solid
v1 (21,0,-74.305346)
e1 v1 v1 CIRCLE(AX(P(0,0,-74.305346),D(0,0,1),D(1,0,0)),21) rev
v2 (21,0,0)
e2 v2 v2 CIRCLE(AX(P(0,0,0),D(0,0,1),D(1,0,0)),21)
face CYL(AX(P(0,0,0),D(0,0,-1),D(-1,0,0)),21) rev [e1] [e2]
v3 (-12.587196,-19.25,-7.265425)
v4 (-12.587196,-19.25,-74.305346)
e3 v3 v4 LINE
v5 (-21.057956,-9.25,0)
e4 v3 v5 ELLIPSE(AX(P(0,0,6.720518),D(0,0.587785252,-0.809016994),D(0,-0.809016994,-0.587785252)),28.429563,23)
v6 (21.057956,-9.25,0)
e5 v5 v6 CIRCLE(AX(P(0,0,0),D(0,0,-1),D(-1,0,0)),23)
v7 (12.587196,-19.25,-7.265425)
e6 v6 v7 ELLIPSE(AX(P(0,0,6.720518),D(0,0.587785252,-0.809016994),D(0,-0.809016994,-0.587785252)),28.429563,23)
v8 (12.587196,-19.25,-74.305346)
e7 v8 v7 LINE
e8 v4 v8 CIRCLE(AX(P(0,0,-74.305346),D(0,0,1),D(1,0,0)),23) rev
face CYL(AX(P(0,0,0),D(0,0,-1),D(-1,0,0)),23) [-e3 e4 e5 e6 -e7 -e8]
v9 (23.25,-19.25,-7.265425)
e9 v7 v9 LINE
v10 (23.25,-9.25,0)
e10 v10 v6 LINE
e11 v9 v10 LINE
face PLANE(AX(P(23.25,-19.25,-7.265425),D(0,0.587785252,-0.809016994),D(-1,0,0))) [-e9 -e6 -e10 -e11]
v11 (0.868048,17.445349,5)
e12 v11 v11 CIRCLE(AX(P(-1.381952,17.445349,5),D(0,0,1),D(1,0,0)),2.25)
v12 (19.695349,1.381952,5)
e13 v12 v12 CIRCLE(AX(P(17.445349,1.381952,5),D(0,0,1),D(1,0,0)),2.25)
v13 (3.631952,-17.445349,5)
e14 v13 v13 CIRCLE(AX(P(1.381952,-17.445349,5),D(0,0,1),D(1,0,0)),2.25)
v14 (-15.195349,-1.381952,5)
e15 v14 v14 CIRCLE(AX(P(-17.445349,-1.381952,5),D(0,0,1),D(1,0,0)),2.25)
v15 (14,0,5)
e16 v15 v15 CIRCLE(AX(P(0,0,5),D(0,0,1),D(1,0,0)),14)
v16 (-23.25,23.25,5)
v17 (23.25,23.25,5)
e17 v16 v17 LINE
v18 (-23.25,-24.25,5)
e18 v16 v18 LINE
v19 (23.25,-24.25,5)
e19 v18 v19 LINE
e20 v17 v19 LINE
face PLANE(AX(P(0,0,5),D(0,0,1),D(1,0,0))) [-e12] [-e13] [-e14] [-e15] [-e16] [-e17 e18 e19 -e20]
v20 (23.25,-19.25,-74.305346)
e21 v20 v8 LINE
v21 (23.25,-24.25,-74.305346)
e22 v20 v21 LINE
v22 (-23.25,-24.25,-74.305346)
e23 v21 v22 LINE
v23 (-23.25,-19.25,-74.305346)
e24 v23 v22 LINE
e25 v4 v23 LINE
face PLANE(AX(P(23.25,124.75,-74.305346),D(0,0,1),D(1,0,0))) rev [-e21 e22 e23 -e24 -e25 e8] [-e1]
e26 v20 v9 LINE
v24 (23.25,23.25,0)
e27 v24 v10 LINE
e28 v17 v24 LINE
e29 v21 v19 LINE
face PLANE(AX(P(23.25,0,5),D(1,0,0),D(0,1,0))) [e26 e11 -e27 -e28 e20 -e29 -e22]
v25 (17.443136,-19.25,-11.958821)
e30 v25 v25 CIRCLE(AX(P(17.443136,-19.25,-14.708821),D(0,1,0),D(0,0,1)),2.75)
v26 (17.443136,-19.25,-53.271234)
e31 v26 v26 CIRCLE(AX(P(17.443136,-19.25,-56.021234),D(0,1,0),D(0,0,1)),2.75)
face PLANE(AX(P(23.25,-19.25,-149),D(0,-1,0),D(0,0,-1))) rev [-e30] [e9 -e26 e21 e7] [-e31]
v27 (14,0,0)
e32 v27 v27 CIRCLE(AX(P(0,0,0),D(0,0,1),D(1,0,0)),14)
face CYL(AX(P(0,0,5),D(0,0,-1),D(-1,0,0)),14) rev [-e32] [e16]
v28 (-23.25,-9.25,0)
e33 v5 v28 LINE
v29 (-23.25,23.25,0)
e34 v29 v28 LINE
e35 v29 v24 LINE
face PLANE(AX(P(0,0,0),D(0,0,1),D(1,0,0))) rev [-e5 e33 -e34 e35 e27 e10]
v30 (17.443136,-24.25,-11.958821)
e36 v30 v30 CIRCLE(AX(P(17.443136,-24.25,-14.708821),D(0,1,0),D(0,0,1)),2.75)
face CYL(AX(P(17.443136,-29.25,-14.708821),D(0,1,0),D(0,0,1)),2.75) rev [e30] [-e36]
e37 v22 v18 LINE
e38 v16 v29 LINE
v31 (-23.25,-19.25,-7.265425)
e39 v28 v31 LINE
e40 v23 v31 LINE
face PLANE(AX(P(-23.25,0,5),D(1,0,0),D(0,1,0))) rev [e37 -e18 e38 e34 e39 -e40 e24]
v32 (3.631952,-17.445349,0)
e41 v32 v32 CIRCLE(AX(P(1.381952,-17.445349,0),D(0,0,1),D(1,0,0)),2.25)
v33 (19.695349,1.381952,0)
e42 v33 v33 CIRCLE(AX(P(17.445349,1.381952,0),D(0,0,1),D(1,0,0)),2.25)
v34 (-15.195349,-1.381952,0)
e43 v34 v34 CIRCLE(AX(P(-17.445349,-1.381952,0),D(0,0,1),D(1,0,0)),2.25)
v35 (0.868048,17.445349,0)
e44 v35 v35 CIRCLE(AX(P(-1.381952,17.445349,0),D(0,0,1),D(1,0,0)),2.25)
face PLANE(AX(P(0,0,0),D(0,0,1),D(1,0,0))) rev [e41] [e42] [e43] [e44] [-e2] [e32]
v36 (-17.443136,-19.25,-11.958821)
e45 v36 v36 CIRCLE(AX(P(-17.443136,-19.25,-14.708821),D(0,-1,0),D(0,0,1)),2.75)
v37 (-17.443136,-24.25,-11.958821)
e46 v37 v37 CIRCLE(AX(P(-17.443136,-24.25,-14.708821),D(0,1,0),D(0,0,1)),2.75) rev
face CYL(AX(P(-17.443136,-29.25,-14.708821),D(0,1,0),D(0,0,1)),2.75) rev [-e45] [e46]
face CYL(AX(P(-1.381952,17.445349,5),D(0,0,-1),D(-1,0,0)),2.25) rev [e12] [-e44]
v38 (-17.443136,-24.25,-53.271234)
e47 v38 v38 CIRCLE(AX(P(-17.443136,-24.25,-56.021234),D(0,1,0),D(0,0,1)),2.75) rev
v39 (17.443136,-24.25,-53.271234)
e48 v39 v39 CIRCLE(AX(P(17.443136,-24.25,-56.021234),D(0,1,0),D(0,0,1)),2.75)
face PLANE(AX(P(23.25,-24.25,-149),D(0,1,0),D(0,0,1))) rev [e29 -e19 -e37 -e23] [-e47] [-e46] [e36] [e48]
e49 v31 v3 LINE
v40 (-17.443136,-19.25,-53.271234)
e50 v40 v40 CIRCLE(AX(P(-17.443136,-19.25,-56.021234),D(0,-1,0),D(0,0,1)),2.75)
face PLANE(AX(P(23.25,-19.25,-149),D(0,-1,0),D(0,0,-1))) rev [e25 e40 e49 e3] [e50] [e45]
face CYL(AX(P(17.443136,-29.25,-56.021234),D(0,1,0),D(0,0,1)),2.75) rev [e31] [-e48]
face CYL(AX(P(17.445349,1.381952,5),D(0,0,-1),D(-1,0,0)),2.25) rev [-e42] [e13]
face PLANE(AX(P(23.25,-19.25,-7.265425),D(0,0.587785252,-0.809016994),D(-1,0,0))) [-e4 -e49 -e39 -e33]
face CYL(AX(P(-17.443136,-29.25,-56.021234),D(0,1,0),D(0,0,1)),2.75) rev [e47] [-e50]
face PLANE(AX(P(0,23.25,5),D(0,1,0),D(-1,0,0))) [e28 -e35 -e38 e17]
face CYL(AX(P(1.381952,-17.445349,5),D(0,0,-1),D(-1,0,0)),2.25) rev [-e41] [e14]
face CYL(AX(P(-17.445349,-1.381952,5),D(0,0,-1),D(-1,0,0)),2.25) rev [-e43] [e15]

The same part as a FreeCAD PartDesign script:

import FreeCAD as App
import Part
import Sketcher
Q = App.Units.Quantity


def edges_at(feature, points):
    """Names of the edges that pass closest to the given points."""
    edges = feature.Shape.Edges
    near = lambda p: min(range(len(edges)), key=lambda i: edges[i].distToShape(Part.Vertex(*p))[0])
    return sorted({f"Edge{near(p) + 1}" for p in points})

doc = App.newDocument("Part")
body = doc.addObject("PartDesign::Body", "Body")

sketch1 = body.newObject("Sketcher::SketchObject", "Sketch")
sketch1.AttachmentSupport = (doc.getObject("XY_Plane"), [""])
sketch1.MapMode = "FlatFace"
sketch1.addGeometry([
    Part.LineSegment(App.Vector(-23.2, 23.2, 0), App.Vector(-23.2, -23.2, 0)),
    Part.LineSegment(App.Vector(-23.2, -23.2, 0), App.Vector(23.2, -23.2, 0)),
    Part.LineSegment(App.Vector(23.2, -23.2, 0), App.Vector(23.2, 23.2, 0)),
    Part.LineSegment(App.Vector(23.2, 23.2, 0), App.Vector(-23.2, 23.2, 0)),
    Part.Circle(App.Vector(-17.4, -1.4, 0), App.Vector(0, 0, 1), 2.2),
    Part.Circle(App.Vector(1.4, -17.4, 0), App.Vector(0, 0, 1), 2.2),
    Part.Circle(App.Vector(-1.4, 17.4, 0), App.Vector(0, 0, 1), 2.2),
    Part.Circle(App.Vector(0, 0, 0), App.Vector(0, 0, 1), 14),
    Part.Circle(App.Vector(17.4, 1.4, 0), App.Vector(0, 0, 1), 2.2),
], False)
sketch1.addConstraint([
    Sketcher.Constraint("Coincident", 0, 2, 1, 1),
    Sketcher.Constraint("Coincident", 1, 2, 2, 1),
    Sketcher.Constraint("Coincident", 2, 2, 3, 1),
    Sketcher.Constraint("Coincident", 3, 2, 0, 1),
    Sketcher.Constraint("Vertical", 0),
    Sketcher.Constraint("Horizontal", 1),
    Sketcher.Constraint("Vertical", 2),
    Sketcher.Constraint("Horizontal", 3),
    Sketcher.Constraint("Coincident", 7, 3, -1, 1),
    Sketcher.Constraint("Equal", 4, 5),
    Sketcher.Constraint("Equal", 5, 6),
    Sketcher.Constraint("Equal", 6, 8),
    Sketcher.Constraint("Symmetric", 5, 3, 6, 3, -1, 1),
    Sketcher.Constraint("Symmetric", 4, 3, 8, 3, -1, 1),
    Sketcher.Constraint("Symmetric", 0, 2, 2, 2, -1, 1),
    Sketcher.Constraint("Equal", 3, 0),
    Sketcher.Constraint("Diameter", 7, Q("28 mm")),
    Sketcher.Constraint("Diameter", 4, Q("4.5 mm")),
    Sketcher.Constraint("DistanceX", 1, 1, 1, 2, Q("46.5 mm")),
    Sketcher.Constraint("DistanceX", 4, 3, 5, 3, Q("18.827301 mm")),
    Sketcher.Constraint("DistanceY", 4, 3, 6, 3, Q("18.827301 mm")),
    Sketcher.Constraint("DistanceY", 5, 3, 6, 3, Q("34.890698 mm")),
    Sketcher.Constraint("DistanceX", 4, 3, 8, 3, Q("34.890698 mm")),
])
pad1 = body.newObject("PartDesign::Pad", "Pad")
pad1.Profile = sketch1
pad1.Length = 5

sketch2 = body.newObject("Sketcher::SketchObject", "Sketch001")
sketch2.AttachmentSupport = (doc.getObject("XY_Plane"), [""])
sketch2.MapMode = "FlatFace"
sketch2.addGeometry([
    Part.LineSegment(App.Vector(23, -19, 0), App.Vector(23, -24, 0)),
    Part.LineSegment(App.Vector(23, -24, 0), App.Vector(-23, -24, 0)),
    Part.LineSegment(App.Vector(-23, -24, 0), App.Vector(-23, -19, 0)),
    Part.LineSegment(App.Vector(-23, -19, 0), App.Vector(23, -19, 0)),
], False)
sketch2.addConstraint([
    Sketcher.Constraint("Coincident", 0, 2, 1, 1),
    Sketcher.Constraint("Coincident", 1, 2, 2, 1),
    Sketcher.Constraint("Coincident", 2, 2, 3, 1),
    Sketcher.Constraint("Coincident", 3, 2, 0, 1),
    Sketcher.Constraint("Vertical", 0),
    Sketcher.Constraint("Horizontal", 1),
    Sketcher.Constraint("Vertical", 2),
    Sketcher.Constraint("Horizontal", 3),
    Sketcher.Constraint("DistanceY", 0, 2, 0, 1, Q("5 mm")),
    Sketcher.Constraint("DistanceX", 1, 2, 1, 1, Q("46.5 mm")),
    Sketcher.Constraint("DistanceX", -1, 1, 0, 2, Q("23.25 mm")),
    Sketcher.Constraint("DistanceY", 0, 2, -1, 1, Q("24.25 mm")),
])
pad2 = body.newObject("PartDesign::Pad", "Pad001")
pad2.Profile = sketch2
pad2.Length = 149
pad2.Reversed = True

sketch3 = body.newObject("Sketcher::SketchObject", "Sketch002")
sketch3.AttachmentSupport = (doc.getObject("XZ_Plane"), [""])
sketch3.MapMode = "FlatFace"
sketch3.AttachmentOffset = App.Placement(App.Vector(0, 0, 23.25), App.Rotation())
sketch3.addGeometry([
    Part.LineSegment(App.Vector(-23, 5, 0), App.Vector(-23, 0, 0)),
    Part.LineSegment(App.Vector(-23, 0, 0), App.Vector(23, 0, 0)),
    Part.LineSegment(App.Vector(23, 0, 0), App.Vector(23, 5, 0)),
    Part.LineSegment(App.Vector(23, 5, 0), App.Vector(-23, 5, 0)),
], False)
sketch3.addConstraint([
    Sketcher.Constraint("Coincident", 0, 2, 1, 1),
    Sketcher.Constraint("Coincident", 1, 2, 2, 1),
    Sketcher.Constraint("Coincident", 2, 2, 3, 1),
    Sketcher.Constraint("Coincident", 3, 2, 0, 1),
    Sketcher.Constraint("Vertical", 0),
    Sketcher.Constraint("Horizontal", 1),
    Sketcher.Constraint("Vertical", 2),
    Sketcher.Constraint("Horizontal", 3),
    Sketcher.Constraint("Symmetric", 0, 2, 1, 2, -1, 1),
    Sketcher.Constraint("DistanceY", 0, 2, 0, 1, Q("5 mm")),
    Sketcher.Constraint("DistanceX", 1, 1, 1, 2, Q("46.5 mm")),
])
pad3 = body.newObject("PartDesign::Pad", "Pad002")
pad3.Profile = sketch3
pad3.Length = 1

sketch4 = body.newObject("Sketcher::SketchObject", "Sketch003")
sketch4.AttachmentSupport = (doc.getObject("XZ_Plane"), [""])
sketch4.MapMode = "FlatFace"
sketch4.AttachmentOffset = App.Placement(App.Vector(0, 0, 19.25), App.Rotation())
sketch4.addGeometry([
    Part.Circle(App.Vector(17.4, -14.7, 0), App.Vector(0, 0, 1), 2.8),
    Part.Circle(App.Vector(17.4, -87.8, 0), App.Vector(0, 0, 1), 2.8),
    Part.Circle(App.Vector(17.4, -56, 0), App.Vector(0, 0, 1), 2.8),
    Part.Circle(App.Vector(17.4, -129.1, 0), App.Vector(0, 0, 1), 2.8),
], False)
sketch4.addConstraint([
    Sketcher.Constraint("Equal", 0, 1),
    Sketcher.Constraint("Equal", 1, 2),
    Sketcher.Constraint("Equal", 2, 3),
    Sketcher.Constraint("Vertical", 0, 3, 1, 3),
    Sketcher.Constraint("Vertical", 1, 3, 2, 3),
    Sketcher.Constraint("Vertical", 2, 3, 3, 3),
    Sketcher.Constraint("Diameter", 0, Q("5.5 mm")),
    Sketcher.Constraint("DistanceY", 0, 3, -1, 1, Q("14.708821 mm")),
    Sketcher.Constraint("DistanceY", 1, 3, 2, 3, Q("31.812452 mm")),
    Sketcher.Constraint("DistanceY", 3, 3, 1, 3, Q("41.307021 mm")),
    Sketcher.Constraint("DistanceX", -1, 1, 0, 3, Q("17.443136 mm")),
    Sketcher.Constraint("DistanceY", 1, 3, -1, 1, Q("87.833686 mm")),
])
pocket1 = body.newObject("PartDesign::Pocket", "Pocket")
pocket1.Profile = sketch4
pocket1.Length = 10
pocket1.Reversed = True
doc.recompute()

mirrored = body.newObject("PartDesign::Mirrored", "Mirrored")
mirrored.Originals = [pocket1]
mirrored.MirrorPlane = (doc.getObject("YZ_Plane"), [""])
body.Tip = mirrored

sketch5 = body.newObject("Sketcher::SketchObject", "Sketch004")
sketch5.AttachmentSupport = (doc.getObject("XY_Plane"), [""])
sketch5.MapMode = "FlatFace"
sketch5.AttachmentOffset = App.Placement(App.Vector(0, 0, -149), App.Rotation())
sketch5.addGeometry(Part.Circle(App.Vector(0, 0, 0), App.Vector(0, 0, 1), 23), False)
sketch5.addConstraint([
    Sketcher.Constraint("Coincident", 0, 3, -1, 1),
    Sketcher.Constraint("Diameter", 0, Q("46 mm")),
])
pocket2 = body.newObject("PartDesign::Pocket", "Pocket001")
pocket2.Profile = sketch5
pocket2.Length = 149
pocket2.Reversed = True

sketch6 = body.newObject("Sketcher::SketchObject", "Sketch005")
sketch6.AttachmentSupport = (doc.getObject("XY_Plane"), [""])
sketch6.MapMode = "FlatFace"
sketch6.AttachmentOffset = App.Placement(App.Vector(0, 0, -149), App.Rotation())
sketch6.addGeometry([
    Part.Circle(App.Vector(0, 0, 0), App.Vector(0, 0, 1), 23),
    Part.Circle(App.Vector(0, 0, 0), App.Vector(0, 0, 1), 21),
], False)
sketch6.addConstraint([
    Sketcher.Constraint("Coincident", 0, 3, -1, 1),
    Sketcher.Constraint("Coincident", 1, 3, -1, 1),
    Sketcher.Constraint("Diameter", 0, Q("46 mm")),
    Sketcher.Constraint("Diameter", 1, Q("42 mm")),
])
pad4 = body.newObject("PartDesign::Pad", "Pad003")
pad4.Profile = sketch6
pad4.Length = 149
doc.recompute()

chamfer = body.newObject("PartDesign::Chamfer", "Chamfer")
chamfer.Base = (pad4, edges_at(pad4, [(17.919, -19.25, 0)]))
chamfer.ChamferType = "Two distances"
chamfer.Size = 10
chamfer.Size2 = 7.265425
doc.recompute()

chamfer2 = body.newObject("PartDesign::Chamfer", "Chamfer001")
chamfer2.Base = (chamfer, edges_at(chamfer, [(-17.919, -19.25, 0)]))
chamfer2.ChamferType = "Two distances"
chamfer2.Size = 10
chamfer2.Size2 = 7.265425

sketch7 = body.newObject("Sketcher::SketchObject", "Sketch006")
sketch7.AttachmentSupport = (doc.getObject("XZ_Plane"), [""])
sketch7.MapMode = "FlatFace"
sketch7.AttachmentOffset = App.Placement(App.Vector(0, 0, 24.25), App.Rotation())
sketch7.addGeometry([
    Part.LineSegment(App.Vector(-23, -74, 0), App.Vector(-23, -149, 0)),
    Part.LineSegment(App.Vector(-23, -149, 0), App.Vector(23, -149, 0)),
    Part.LineSegment(App.Vector(23, -149, 0), App.Vector(23, -74, 0)),
    Part.LineSegment(App.Vector(23, -74, 0), App.Vector(-23, -74, 0)),
], False)
sketch7.addConstraint([
    Sketcher.Constraint("Coincident", 0, 2, 1, 1),
    Sketcher.Constraint("Coincident", 1, 2, 2, 1),
    Sketcher.Constraint("Coincident", 2, 2, 3, 1),
    Sketcher.Constraint("Coincident", 3, 2, 0, 1),
    Sketcher.Constraint("Vertical", 0),
    Sketcher.Constraint("Horizontal", 1),
    Sketcher.Constraint("Vertical", 2),
    Sketcher.Constraint("Horizontal", 3),
    Sketcher.Constraint("DistanceX", 1, 1, 1, 2, Q("46.5 mm")),
    Sketcher.Constraint("DistanceY", 0, 2, -1, 1, Q("149 mm")),
    Sketcher.Constraint("DistanceX", 0, 2, -1, 1, Q("23.25 mm")),
    Sketcher.Constraint("DistanceY", 0, 2, 0, 1, Q("74.694654 mm")),
])
pocket3 = body.newObject("PartDesign::Pocket", "Pocket002")
pocket3.Profile = sketch7
pocket3.Length = 149

doc.recompute()
